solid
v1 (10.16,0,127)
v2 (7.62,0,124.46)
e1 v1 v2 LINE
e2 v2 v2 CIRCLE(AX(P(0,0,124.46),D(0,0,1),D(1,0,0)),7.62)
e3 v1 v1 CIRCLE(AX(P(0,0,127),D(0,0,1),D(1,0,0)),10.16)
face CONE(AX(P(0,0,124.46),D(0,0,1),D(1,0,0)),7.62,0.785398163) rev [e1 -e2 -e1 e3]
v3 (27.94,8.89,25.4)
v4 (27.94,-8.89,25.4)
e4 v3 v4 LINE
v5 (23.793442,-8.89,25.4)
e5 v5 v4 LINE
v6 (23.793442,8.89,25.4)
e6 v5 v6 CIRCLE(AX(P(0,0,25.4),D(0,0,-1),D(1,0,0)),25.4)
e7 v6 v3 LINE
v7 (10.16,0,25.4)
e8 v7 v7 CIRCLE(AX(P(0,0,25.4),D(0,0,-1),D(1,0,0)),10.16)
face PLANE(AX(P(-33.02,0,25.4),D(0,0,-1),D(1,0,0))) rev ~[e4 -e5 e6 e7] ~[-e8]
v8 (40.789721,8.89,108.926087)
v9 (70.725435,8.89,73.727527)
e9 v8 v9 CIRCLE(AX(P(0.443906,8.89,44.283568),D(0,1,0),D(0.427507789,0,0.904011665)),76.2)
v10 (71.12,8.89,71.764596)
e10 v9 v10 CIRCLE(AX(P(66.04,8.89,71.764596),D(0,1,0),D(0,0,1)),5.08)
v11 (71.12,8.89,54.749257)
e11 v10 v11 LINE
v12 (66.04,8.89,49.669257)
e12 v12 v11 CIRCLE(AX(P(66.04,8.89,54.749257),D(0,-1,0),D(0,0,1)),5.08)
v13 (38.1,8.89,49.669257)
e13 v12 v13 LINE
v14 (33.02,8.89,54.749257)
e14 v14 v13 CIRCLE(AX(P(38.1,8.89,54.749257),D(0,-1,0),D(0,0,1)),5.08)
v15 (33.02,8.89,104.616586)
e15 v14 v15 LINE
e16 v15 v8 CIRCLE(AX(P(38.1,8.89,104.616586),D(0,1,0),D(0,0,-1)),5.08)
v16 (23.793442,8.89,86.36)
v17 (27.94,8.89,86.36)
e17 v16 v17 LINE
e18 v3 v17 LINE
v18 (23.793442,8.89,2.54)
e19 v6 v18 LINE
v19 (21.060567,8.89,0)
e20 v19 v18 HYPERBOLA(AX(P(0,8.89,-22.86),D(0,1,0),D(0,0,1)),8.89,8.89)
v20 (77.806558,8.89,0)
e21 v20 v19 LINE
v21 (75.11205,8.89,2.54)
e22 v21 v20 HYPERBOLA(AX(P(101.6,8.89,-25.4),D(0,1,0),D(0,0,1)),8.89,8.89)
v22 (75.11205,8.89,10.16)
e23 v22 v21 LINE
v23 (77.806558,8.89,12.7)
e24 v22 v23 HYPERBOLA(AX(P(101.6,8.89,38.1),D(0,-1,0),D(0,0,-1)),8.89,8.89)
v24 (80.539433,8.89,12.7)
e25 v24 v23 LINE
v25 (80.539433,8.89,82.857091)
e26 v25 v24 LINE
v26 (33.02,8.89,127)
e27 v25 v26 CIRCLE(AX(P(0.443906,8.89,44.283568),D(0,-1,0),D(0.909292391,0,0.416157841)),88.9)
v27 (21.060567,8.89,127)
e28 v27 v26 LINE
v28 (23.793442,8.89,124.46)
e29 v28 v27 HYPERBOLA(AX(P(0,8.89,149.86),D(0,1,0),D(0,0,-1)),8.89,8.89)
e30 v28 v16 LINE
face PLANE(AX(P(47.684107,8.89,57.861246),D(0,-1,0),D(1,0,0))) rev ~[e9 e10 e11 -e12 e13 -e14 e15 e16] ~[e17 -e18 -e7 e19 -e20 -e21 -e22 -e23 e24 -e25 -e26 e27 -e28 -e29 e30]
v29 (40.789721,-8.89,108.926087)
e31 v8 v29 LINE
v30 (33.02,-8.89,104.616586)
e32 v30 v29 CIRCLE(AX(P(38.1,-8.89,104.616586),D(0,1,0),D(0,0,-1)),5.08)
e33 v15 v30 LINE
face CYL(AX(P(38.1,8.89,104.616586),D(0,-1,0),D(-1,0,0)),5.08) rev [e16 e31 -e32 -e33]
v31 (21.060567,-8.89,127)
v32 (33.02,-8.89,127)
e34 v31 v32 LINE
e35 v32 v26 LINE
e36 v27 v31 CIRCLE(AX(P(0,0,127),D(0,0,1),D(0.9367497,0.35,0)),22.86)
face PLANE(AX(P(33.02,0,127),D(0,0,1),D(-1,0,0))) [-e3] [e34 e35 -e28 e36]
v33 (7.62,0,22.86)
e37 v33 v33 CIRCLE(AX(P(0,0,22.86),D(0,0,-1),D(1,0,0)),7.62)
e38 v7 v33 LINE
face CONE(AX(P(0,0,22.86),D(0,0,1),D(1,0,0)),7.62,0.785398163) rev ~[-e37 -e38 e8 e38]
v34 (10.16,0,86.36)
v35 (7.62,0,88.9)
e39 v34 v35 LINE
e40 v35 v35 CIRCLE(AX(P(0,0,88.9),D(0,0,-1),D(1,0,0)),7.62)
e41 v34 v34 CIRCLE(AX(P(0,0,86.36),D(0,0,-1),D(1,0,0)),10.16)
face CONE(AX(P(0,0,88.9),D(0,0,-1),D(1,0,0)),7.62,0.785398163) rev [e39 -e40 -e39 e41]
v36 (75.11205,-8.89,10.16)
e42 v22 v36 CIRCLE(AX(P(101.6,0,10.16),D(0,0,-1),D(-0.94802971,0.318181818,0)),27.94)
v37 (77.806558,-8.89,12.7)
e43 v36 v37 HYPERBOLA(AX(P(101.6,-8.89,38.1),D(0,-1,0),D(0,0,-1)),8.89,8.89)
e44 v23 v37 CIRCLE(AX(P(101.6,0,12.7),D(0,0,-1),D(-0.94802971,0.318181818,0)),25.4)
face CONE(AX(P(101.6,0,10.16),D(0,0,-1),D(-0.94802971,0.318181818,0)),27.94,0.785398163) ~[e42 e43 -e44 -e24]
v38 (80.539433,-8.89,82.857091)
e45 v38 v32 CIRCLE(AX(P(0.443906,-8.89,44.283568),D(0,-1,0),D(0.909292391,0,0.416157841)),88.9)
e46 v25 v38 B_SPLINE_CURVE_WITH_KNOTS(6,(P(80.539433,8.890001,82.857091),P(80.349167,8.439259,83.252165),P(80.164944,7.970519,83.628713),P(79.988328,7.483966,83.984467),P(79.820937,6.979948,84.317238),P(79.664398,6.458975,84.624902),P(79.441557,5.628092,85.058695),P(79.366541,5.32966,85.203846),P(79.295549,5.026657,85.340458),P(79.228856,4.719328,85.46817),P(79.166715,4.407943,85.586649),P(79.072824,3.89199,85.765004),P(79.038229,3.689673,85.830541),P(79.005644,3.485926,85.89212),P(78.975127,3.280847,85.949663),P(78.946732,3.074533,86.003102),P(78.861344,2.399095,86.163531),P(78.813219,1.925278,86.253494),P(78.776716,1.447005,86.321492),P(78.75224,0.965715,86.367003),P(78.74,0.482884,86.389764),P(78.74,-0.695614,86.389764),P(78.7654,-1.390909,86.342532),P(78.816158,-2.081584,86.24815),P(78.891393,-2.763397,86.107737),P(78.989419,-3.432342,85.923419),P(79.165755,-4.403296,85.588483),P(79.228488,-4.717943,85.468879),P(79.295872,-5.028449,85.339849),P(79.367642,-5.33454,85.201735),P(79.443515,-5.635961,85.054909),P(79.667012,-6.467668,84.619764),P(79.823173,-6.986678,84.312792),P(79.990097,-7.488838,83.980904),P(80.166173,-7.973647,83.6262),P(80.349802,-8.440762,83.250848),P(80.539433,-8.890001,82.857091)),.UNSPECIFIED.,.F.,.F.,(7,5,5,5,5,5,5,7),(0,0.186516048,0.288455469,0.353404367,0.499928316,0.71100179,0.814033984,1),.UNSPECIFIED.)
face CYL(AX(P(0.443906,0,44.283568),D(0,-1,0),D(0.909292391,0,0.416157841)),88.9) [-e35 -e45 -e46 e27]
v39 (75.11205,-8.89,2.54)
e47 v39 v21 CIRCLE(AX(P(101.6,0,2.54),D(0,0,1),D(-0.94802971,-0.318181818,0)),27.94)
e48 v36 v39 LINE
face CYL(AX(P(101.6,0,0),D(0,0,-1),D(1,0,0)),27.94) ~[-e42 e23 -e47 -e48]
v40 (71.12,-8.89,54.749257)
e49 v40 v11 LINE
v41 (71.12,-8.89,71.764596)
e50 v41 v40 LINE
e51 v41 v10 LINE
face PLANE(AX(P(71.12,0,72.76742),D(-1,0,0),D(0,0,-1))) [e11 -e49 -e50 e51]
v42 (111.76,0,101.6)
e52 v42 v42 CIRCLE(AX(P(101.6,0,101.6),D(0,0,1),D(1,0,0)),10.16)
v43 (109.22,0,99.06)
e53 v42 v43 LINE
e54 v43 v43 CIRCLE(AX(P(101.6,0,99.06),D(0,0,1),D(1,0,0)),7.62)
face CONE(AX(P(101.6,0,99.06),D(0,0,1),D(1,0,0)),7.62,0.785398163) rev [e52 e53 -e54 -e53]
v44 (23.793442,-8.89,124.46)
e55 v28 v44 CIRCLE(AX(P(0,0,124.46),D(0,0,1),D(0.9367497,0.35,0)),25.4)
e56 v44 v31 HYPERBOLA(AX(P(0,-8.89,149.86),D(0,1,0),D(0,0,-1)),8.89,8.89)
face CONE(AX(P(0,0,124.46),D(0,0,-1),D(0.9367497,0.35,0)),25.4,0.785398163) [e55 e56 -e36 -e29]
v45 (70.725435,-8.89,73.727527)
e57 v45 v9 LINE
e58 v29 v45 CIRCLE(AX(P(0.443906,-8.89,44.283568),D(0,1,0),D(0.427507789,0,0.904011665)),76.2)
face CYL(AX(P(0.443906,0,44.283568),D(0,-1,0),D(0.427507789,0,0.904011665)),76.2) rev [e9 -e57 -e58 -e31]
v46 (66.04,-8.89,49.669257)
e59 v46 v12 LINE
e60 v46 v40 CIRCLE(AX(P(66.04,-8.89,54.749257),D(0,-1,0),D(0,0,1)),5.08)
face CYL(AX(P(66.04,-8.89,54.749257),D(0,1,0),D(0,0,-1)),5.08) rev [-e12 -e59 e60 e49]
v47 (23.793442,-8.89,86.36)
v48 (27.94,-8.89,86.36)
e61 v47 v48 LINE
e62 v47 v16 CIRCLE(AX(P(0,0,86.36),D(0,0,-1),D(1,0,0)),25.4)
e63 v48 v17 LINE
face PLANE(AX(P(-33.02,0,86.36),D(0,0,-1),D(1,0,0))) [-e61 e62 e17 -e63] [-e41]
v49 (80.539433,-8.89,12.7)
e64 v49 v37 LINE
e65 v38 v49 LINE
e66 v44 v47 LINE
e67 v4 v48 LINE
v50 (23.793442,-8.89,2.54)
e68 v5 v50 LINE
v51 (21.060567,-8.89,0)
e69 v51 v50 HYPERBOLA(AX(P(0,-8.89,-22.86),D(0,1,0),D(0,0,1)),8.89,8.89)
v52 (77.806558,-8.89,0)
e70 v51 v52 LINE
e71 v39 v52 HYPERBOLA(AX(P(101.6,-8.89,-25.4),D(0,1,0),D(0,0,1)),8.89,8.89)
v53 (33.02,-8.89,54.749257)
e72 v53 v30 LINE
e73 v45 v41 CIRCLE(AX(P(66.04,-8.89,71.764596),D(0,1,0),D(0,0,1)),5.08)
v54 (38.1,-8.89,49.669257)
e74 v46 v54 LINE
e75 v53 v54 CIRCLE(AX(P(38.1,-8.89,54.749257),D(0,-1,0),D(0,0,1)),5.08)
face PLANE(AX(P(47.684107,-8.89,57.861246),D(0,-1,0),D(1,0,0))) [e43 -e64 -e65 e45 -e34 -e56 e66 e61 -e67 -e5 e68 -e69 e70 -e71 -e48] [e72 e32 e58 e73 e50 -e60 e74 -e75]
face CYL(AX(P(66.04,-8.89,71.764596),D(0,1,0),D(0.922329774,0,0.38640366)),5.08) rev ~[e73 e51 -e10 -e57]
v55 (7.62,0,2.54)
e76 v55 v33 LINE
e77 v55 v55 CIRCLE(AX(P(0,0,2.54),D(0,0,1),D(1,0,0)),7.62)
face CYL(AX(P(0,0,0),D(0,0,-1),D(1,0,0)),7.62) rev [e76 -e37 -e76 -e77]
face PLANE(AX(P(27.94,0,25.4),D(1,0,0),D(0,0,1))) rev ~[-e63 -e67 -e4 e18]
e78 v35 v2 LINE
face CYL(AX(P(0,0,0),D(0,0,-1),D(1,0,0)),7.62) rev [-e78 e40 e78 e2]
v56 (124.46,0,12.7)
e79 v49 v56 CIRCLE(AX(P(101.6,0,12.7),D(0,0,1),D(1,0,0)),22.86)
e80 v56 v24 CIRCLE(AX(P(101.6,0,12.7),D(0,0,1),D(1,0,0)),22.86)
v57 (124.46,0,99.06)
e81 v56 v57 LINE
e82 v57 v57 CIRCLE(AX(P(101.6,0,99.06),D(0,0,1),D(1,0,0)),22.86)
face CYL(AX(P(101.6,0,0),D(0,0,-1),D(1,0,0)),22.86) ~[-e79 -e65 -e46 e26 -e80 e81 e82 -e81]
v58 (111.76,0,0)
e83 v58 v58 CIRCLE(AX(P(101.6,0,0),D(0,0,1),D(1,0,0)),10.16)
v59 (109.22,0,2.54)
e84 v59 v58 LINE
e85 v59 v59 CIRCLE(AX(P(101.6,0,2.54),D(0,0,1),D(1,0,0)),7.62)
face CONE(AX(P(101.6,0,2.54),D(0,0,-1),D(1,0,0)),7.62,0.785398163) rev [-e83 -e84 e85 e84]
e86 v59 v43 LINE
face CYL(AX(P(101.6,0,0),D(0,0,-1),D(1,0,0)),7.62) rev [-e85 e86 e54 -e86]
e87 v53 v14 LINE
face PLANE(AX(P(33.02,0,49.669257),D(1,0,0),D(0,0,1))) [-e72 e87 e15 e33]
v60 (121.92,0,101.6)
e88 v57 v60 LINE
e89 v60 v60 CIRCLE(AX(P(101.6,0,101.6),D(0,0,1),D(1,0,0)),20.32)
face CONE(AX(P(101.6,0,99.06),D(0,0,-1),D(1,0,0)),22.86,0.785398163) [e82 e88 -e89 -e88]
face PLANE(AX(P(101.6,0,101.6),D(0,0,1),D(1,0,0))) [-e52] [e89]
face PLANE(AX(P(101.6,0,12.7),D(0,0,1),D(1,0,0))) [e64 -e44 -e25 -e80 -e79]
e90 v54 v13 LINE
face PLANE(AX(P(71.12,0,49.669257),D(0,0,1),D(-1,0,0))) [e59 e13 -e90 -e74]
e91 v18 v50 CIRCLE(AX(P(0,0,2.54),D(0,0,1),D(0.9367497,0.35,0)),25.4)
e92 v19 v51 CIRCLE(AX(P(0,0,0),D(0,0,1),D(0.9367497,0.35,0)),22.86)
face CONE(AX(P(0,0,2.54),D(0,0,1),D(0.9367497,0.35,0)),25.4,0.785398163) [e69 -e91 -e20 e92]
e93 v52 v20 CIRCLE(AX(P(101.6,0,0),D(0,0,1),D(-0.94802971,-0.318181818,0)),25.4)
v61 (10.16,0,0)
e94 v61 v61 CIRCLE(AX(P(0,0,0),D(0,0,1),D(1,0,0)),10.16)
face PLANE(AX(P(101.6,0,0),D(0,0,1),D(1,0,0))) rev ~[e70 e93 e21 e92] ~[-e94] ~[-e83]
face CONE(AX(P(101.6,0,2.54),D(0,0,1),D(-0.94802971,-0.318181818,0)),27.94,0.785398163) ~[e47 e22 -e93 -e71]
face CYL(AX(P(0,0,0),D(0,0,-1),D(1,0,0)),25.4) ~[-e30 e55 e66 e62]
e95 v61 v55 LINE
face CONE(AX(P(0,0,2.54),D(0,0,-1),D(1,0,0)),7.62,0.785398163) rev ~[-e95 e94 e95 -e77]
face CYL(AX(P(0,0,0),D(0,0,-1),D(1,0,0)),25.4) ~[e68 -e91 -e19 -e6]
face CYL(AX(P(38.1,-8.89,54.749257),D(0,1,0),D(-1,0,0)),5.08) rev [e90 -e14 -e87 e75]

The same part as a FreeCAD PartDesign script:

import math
import FreeCAD as App
import Part
import Sketcher
Q = App.Units.Quantity


def edges_at(feature, points):
    """Names of the edges that pass closest to the given points."""
    edges = feature.Shape.Edges
    near = lambda p: min(range(len(edges)), key=lambda i: edges[i].distToShape(Part.Vertex(*p))[0])
    return sorted({f"Edge{near(p) + 1}" for p in points})

doc = App.newDocument("Part")
body = doc.addObject("PartDesign::Body", "Body")

# Sketch on XY plane
sketch1 = body.newObject("Sketcher::SketchObject", "Sketch")
sketch1.AttachmentSupport = (doc.getObject("XY_Plane"), [""])
sketch1.MapMode = "FlatFace"
sketch1.addGeometry([
    Part.Circle(App.Vector(0, 0, 0), App.Vector(0, 0, 1), 25),
    Part.Circle(App.Vector(0, 0, 0), App.Vector(0, 0, 1), 8),
], False)
sketch1.addConstraint([
    Sketcher.Constraint("Coincident", 0, 3, -1, 1),
    Sketcher.Constraint("Coincident", 1, 3, -1, 1),
    Sketcher.Constraint("Diameter", 0, Q("2 in")),
    Sketcher.Constraint("Diameter", 1, Q("0.6 in")),
])
pad1 = body.newObject("PartDesign::Pad", "Pad")
pad1.Profile = sketch1
pad1.Length = Q("5 in")
body2 = doc.addObject("PartDesign::Body", "Body001")

# Sketch on XY plane
sketch2 = body2.newObject("Sketcher::SketchObject", "Sketch001")
sketch2.AttachmentSupport = (doc.getObject("XY_Plane001"), [""])
sketch2.MapMode = "FlatFace"
sketch2.addGeometry([
    Part.Circle(App.Vector(102, 0, 0), App.Vector(0, 0, 1), 23),
    Part.Circle(App.Vector(102, 0, 0), App.Vector(0, 0, 1), 8),
], False)
sketch2.addConstraint([
    Sketcher.Constraint("Coincident", 1, 3, 0, 3),
    Sketcher.Constraint("PointOnObject", 0, 3, -1),
    Sketcher.Constraint("Diameter", 0, Q("1.8 in")),
    Sketcher.Constraint("Diameter", 1, Q("0.6 in")),
    Sketcher.Constraint("DistanceX", -1, 1, 0, 3, Q("4 in")),
])
pad2 = body2.newObject("PartDesign::Pad", "Pad001")
pad2.Profile = sketch2
pad2.Length = Q("4 in")
body.AllowCompound = True
doc.recompute()

boolean = body.newObject("PartDesign::Boolean", "Boolean")
boolean.Type = "Fuse"
boolean.addObjects([body2])

# Sketch on XZ plane
sketch3 = body.newObject("Sketcher::SketchObject", "Sketch002")
sketch3.AttachmentSupport = (doc.getObject("XZ_Plane"), [""])
sketch3.MapMode = "FlatFace"
sketch3.addGeometry([
    Part.LineSegment(App.Vector(20, 127, 0), App.Vector(20, 0, 0)),  # 0
    Part.LineSegment(App.Vector(20, 0, 0), App.Vector(81, 0, 0)),  # 1
    Part.LineSegment(App.Vector(81, 0, 0), App.Vector(81, 81, 0)),  # 2
    Part.ArcOfCircle(Part.Circle(App.Vector(0, 44, 0), App.Vector(0, 0, 1), 89), math.radians(25), math.radians(69)),  # 3
    Part.LineSegment(App.Vector(33, 127, 0), App.Vector(20, 127, 0)),  # 4
    Part.LineSegment(App.Vector(33, 50, 0), App.Vector(33, 113, 0)),  # 5
    Part.ArcOfCircle(Part.Circle(App.Vector(0, 44, 0), App.Vector(0, 0, 1), 76), math.radians(22), math.radians(65)),  # 6
    Part.LineSegment(App.Vector(71, 73, 0), App.Vector(71, 50, 0)),  # 7
    Part.LineSegment(App.Vector(71, 50, 0), App.Vector(33, 50, 0)),  # 8
], False)
sketch3.addConstraint([
    Sketcher.Constraint("Coincident", 0, 2, 1, 1),
    Sketcher.Constraint("Coincident", 1, 2, 2, 1),
    Sketcher.Constraint("Coincident", 2, 2, 3, 1),
    Sketcher.Constraint("Coincident", 3, 2, 4, 1),
    Sketcher.Constraint("Coincident", 4, 2, 0, 1),
    Sketcher.Constraint("Coincident", 5, 2, 6, 2),
    Sketcher.Constraint("Coincident", 6, 1, 7, 1),
    Sketcher.Constraint("Coincident", 7, 2, 8, 1),
    Sketcher.Constraint("Coincident", 8, 2, 5, 1),
    Sketcher.Constraint("Vertical", 0),
    Sketcher.Constraint("Horizontal", 1),
    Sketcher.Constraint("Vertical", 2),
    Sketcher.Constraint("Horizontal", 4),
    Sketcher.Constraint("Vertical", 5),
    Sketcher.Constraint("Vertical", 7),
    Sketcher.Constraint("Horizontal", 8),
    Sketcher.Constraint("Coincident", 6, 3, 3, 3),
    Sketcher.Constraint("PointOnObject", 0, 2, -1),
    Sketcher.Constraint("Vertical", 3, 2, 5, 2),
    Sketcher.Constraint("Radius", 6, Q("3 in")),
    Sketcher.Constraint("Radius", 3, Q("3.5 in")),
    Sketcher.Constraint("DistanceY", 0, 2, 0, 1, Q("5 in")),
    Sketcher.Constraint("DistanceX", 1, 1, 1, 2, Q("2.4 in")),
    Sketcher.Constraint("DistanceX", 4, 2, 4, 1, Q("0.5 in")),
    Sketcher.Constraint("DistanceX", 8, 2, 8, 1, Q("1.5 in")),
    Sketcher.Constraint("DistanceY", 2, 1, 2, 2, Q("3.2 in")),
    Sketcher.Constraint("DistanceY", 5, 1, 5, 2, Q("2.5 in")),
    Sketcher.Constraint("DistanceX", -1, 1, 0, 2, Q("0.8 in")),
])
pad3 = body.newObject("PartDesign::Pad", "Pad002")
pad3.Profile = sketch3
pad3.Length = Q("0.7 in")
pad3.Midplane = True

# Sketch on XZ plane
sketch4 = body.newObject("Sketcher::SketchObject", "Sketch003")
sketch4.AttachmentSupport = (doc.getObject("XZ_Plane"), [""])
sketch4.MapMode = "FlatFace"
sketch4.addGeometry([
    Part.LineSegment(App.Vector(-33, 86, 0), App.Vector(-33, 25, 0)),
    Part.LineSegment(App.Vector(-33, 25, 0), App.Vector(28, 25, 0)),
    Part.LineSegment(App.Vector(28, 25, 0), App.Vector(28, 86, 0)),
    Part.LineSegment(App.Vector(28, 86, 0), App.Vector(-33, 86, 0)),
], False)
sketch4.addConstraint([
    Sketcher.Constraint("Coincident", 0, 2, 1, 1),
    Sketcher.Constraint("Coincident", 1, 2, 2, 1),
    Sketcher.Constraint("Coincident", 2, 2, 3, 1),
    Sketcher.Constraint("Coincident", 3, 2, 0, 1),
    Sketcher.Constraint("Vertical", 0),
    Sketcher.Constraint("Horizontal", 1),
    Sketcher.Constraint("Vertical", 2),
    Sketcher.Constraint("Horizontal", 3),
    Sketcher.Constraint("Equal", 3, 0),
    Sketcher.Constraint("DistanceX", 1, 1, 1, 2, Q("2.4 in")),
    Sketcher.Constraint("DistanceY", -1, 1, 0, 2, Q("1 in")),
    Sketcher.Constraint("DistanceX", 0, 2, -1, 1, Q("1.3 in")),
])
pocket1 = body.newObject("PartDesign::Pocket", "Pocket")
pocket1.Profile = sketch4
pocket1.Length = Q("4 in")
pocket1.Midplane = True
doc.recompute()

fillet = body.newObject("PartDesign::Fillet", "Fillet")
fillet.Base = (pocket1, edges_at(pocket1, [
    (33.02, 0, 49.669),
    (71.12, 0, 49.669),
    (71.12, 0, 72.767),
    (33.02, 0, 113.169),
]))
fillet.Radius = Q("0.2 in")
doc.recompute()

chamfer = body.newObject("PartDesign::Chamfer", "Chamfer")
chamfer.Base = (fillet, edges_at(fillet, [
    (-25.4, 0, 127),
    (-7.62, 0, 127),
    (-7.62, 0, 25.4),
    (-7.62, 0, 86.36),
    (-25.4, 0, 0),
    (-7.62, 0, 0),
]))
chamfer.Size = Q("0.1 in")

# Sketch on XY plane
sketch5 = body.newObject("Sketcher::SketchObject", "Sketch004")
sketch5.AttachmentSupport = (doc.getObject("XY_Plane"), [""])
sketch5.MapMode = "FlatFace"
sketch5.addGeometry([
    Part.Circle(App.Vector(102, 0, 0), App.Vector(0, 0, 1), 28),
    Part.Circle(App.Vector(102, 0, 0), App.Vector(0, 0, 1), 23),
], False)
sketch5.addConstraint([
    Sketcher.Constraint("Coincident", 1, 3, 0, 3),
    Sketcher.Constraint("PointOnObject", 0, 3, -1),
    Sketcher.Constraint("Diameter", 0, Q("2.2 in")),
    Sketcher.Constraint("Diameter", 1, Q("1.8 in")),
    Sketcher.Constraint("DistanceX", -1, 1, 0, 3, Q("4 in")),
])
pad4 = body.newObject("PartDesign::Pad", "Pad003")
pad4.Profile = sketch5
pad4.Length = Q("0.5 in")
doc.recompute()

chamfer2 = body.newObject("PartDesign::Chamfer", "Chamfer001")
chamfer2.Base = (pad4, edges_at(pad4, [
    (93.98, 0, 101.6),
    (78.74, 0, 101.6),
    (129.54, 0, 12.7),
    (129.54, 0, 0),
    (93.98, 0, 0),
]))
chamfer2.Size = Q("0.1 in")

doc.recompute()
